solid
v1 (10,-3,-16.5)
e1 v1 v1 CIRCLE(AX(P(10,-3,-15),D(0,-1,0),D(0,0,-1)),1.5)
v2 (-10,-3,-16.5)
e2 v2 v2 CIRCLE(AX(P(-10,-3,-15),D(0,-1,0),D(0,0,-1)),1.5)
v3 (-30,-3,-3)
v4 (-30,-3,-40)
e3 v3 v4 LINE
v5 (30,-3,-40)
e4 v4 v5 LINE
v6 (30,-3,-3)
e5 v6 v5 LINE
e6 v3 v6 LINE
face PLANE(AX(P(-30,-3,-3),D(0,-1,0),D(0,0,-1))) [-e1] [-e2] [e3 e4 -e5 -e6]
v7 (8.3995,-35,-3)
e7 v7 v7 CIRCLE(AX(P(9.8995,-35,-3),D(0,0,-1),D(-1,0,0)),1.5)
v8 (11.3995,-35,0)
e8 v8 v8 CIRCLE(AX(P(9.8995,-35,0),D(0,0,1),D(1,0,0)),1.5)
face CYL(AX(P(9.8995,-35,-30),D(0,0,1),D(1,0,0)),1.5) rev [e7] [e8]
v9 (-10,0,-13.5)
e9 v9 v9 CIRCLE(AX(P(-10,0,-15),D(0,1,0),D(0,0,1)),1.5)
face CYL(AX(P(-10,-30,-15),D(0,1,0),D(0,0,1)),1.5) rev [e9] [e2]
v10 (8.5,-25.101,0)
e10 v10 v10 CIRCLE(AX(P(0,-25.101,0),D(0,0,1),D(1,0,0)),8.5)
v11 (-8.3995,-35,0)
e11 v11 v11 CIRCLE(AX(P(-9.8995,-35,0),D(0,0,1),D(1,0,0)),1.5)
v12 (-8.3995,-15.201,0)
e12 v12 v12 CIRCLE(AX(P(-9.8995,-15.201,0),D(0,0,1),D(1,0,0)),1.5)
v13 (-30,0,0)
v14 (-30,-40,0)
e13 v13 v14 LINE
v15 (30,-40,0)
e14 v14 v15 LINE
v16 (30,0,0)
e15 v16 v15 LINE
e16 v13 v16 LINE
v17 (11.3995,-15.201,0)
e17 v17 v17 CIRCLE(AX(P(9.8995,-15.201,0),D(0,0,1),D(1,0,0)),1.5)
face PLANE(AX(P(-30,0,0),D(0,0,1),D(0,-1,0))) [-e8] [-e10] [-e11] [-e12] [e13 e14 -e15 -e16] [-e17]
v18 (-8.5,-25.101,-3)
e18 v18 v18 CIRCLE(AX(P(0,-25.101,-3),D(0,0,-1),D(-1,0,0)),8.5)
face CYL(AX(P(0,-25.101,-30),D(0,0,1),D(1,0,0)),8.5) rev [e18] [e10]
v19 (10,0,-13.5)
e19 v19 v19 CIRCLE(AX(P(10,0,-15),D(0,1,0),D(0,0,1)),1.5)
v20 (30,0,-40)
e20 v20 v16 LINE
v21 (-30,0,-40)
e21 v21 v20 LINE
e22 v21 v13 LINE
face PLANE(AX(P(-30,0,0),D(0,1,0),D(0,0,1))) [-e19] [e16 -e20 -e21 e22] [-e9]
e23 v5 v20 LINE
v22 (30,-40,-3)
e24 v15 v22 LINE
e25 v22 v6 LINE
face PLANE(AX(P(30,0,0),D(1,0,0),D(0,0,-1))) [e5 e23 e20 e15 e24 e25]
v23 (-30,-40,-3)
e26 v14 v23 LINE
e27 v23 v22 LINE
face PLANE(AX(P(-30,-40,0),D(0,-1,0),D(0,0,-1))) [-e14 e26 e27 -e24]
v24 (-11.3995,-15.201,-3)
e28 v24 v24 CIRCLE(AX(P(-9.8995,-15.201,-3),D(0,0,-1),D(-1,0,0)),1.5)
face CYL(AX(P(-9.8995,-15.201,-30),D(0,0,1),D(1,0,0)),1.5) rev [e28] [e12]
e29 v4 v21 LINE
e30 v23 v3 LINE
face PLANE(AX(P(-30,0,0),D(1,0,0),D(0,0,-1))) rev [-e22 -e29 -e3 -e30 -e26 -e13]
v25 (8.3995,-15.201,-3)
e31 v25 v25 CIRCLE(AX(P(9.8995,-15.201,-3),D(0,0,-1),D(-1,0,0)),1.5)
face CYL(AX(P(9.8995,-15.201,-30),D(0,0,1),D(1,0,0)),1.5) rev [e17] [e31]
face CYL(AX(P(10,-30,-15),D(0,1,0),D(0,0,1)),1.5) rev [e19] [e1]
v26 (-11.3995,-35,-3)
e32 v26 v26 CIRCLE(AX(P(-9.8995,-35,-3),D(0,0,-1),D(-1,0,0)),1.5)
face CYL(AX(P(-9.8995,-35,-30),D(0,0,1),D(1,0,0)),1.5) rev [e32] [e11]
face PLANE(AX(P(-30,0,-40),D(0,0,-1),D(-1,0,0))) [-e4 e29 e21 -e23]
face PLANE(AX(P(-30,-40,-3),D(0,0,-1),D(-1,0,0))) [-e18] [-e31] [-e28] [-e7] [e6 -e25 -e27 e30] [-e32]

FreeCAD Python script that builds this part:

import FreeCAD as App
import Part
import Sketcher

doc = App.newDocument("Part")
params = doc.addObject("Spreadsheet::Sheet", "Params")
for row, (alias, value) in enumerate([
    ("sketch1_width", "40 mm"),
    ("sketch1_width2", "37 mm"),
    ("pad1_length", "30 mm"),
    ("pad1_length2", "30 mm"),
    ("sketch2_diameter", "3 mm"),
    ("sketch2_diameter2", "17 mm"),
    ("pocket1_length", "30 mm"),
    ("sketch3_diameter", "3 mm"),
    ("pocket2_length", "30 mm"),
], start=1):
    params.set(f"A{row}", alias)
    params.set(f"B{row}", "=" + value)
    params.setAlias(f"B{row}", alias)

body = doc.addObject("PartDesign::Body", "Body")

# Sketch on YZ plane
sketch1 = body.newObject("Sketcher::SketchObject", "Sketch")
sketch1.AttachmentSupport = (doc.getObject("YZ_Plane"), [""])
sketch1.MapMode = "FlatFace"
sketch1.addGeometry([
    Part.LineSegment(App.Vector(0, -40, 0), App.Vector(0, 0, 0)),  # 0
    Part.LineSegment(App.Vector(0, 0, 0), App.Vector(-40, 0, 0)),  # 1
    Part.LineSegment(App.Vector(-40, 0, 0), App.Vector(-40, -3, 0)),  # 2
    Part.LineSegment(App.Vector(-40, -3, 0), App.Vector(-3, -3, 0)),  # 3
    Part.LineSegment(App.Vector(-3, -3, 0), App.Vector(-3, -40, 0)),  # 4
    Part.LineSegment(App.Vector(-3, -40, 0), App.Vector(0, -40, 0)),  # 5
], False)
sketch1.addConstraint([
    Sketcher.Constraint("Coincident", 0, 2, 1, 1),
    Sketcher.Constraint("Coincident", 1, 2, 2, 1),
    Sketcher.Constraint("Coincident", 2, 2, 3, 1),
    Sketcher.Constraint("Coincident", 3, 2, 4, 1),
    Sketcher.Constraint("Coincident", 4, 2, 5, 1),
    Sketcher.Constraint("Coincident", 5, 2, 0, 1),
    Sketcher.Constraint("Vertical", 0),
    Sketcher.Constraint("Horizontal", 1),
    Sketcher.Constraint("Vertical", 2),
    Sketcher.Constraint("Horizontal", 3),
    Sketcher.Constraint("Vertical", 4),
    Sketcher.Constraint("Horizontal", 5),
    Sketcher.Constraint("Coincident", 0, 2, -1, 1),
    Sketcher.Constraint("Equal", 1, 0),
    Sketcher.Constraint("Equal", 5, 2),
    Sketcher.Constraint("DistanceX", 1, 2, 1, 1, 40.0),
    Sketcher.Constraint("DistanceX", 3, 1, 3, 2, 37.0),
])
sketch1.setExpression("Constraints[15]", "Params.sketch1_width")
sketch1.setExpression("Constraints[16]", "Params.sketch1_width2")
pad1 = body.newObject("PartDesign::Pad", "Pad")
pad1.Profile = sketch1
pad1.Type = "TwoLengths"
pad1.setExpression("Length", "Params.pad1_length")
pad1.setExpression("Length2", "Params.pad1_length2")

# Sketch on XY plane
sketch2 = body.newObject("Sketcher::SketchObject", "Sketch001")
sketch2.AttachmentSupport = (doc.getObject("XY_Plane"), [""])
sketch2.MapMode = "FlatFace"
sketch2.addGeometry([
    Part.Circle(App.Vector(-9.9, -15.2, 0), App.Vector(0, 0, 1), 1.5),  # 0
    Part.Circle(App.Vector(9.9, -15.2, 0), App.Vector(0, 0, 1), 1.5),  # 1
    Part.Circle(App.Vector(-9.9, -35, 0), App.Vector(0, 0, 1), 1.5),  # 2
    Part.Circle(App.Vector(9.9, -35, 0), App.Vector(0, 0, 1), 1.5),  # 3
    Part.Circle(App.Vector(0, -25.1, 0), App.Vector(0, 0, 1), 8.5),  # 4
], False)
sketch2.addConstraint([
    Sketcher.Constraint("Equal", 0, 1),
    Sketcher.Constraint("Equal", 1, 2),
    Sketcher.Constraint("Equal", 2, 3),
    Sketcher.Constraint("Symmetric", 0, 3, 1, 3, -2),
    Sketcher.Constraint("Symmetric", 2, 3, 3, 3, -2),
    Sketcher.Constraint("PointOnObject", 4, 3, -2),
    Sketcher.Constraint("Vertical", 0, 3, 2, 3),
    Sketcher.Constraint("Diameter", 0, 3.0),
    Sketcher.Constraint("Diameter", 4, 17.0),
    Sketcher.Constraint("DistanceY", 2, 3, -1, 1, 35.0),
    Sketcher.Constraint("DistanceY", 4, 3, 0, 3, 9.9),
    Sketcher.Constraint("DistanceY", 0, 3, -1, 1, 15.201),
    Sketcher.Constraint("DistanceX", 0, 3, 1, 3, 19.799),
])
sketch2.setExpression("Constraints[7]", "Params.sketch2_diameter")
sketch2.setExpression("Constraints[8]", "Params.sketch2_diameter2")
pocket1 = body.newObject("PartDesign::Pocket", "Pocket")
pocket1.Profile = sketch2
pocket1.setExpression("Length", "Params.pocket1_length")

# Sketch on XZ plane
sketch3 = body.newObject("Sketcher::SketchObject", "Sketch002")
sketch3.AttachmentSupport = (doc.getObject("XZ_Plane"), [""])
sketch3.MapMode = "FlatFace"
sketch3.addGeometry([
    Part.Circle(App.Vector(-10, -15, 0), App.Vector(0, 0, 1), 1.5),
    Part.Circle(App.Vector(10, -15, 0), App.Vector(0, 0, 1), 1.5),
], False)
sketch3.addConstraint([
    Sketcher.Constraint("Equal", 0, 1),
    Sketcher.Constraint("Symmetric", 0, 3, 1, 3, -2),
    Sketcher.Constraint("Diameter", 0, 3.0),
    Sketcher.Constraint("DistanceX", 0, 3, -1, 1, 10.0),
    Sketcher.Constraint("DistanceY", 0, 3, -1, 1, 15.0),
])
sketch3.setExpression("Constraints[2]", "Params.sketch3_diameter")
pocket2 = body.newObject("PartDesign::Pocket", "Pocket001")
pocket2.Profile = sketch3
pocket2.setExpression("Length", "Params.pocket2_length")
pocket2.Reversed = True

doc.recompute()
